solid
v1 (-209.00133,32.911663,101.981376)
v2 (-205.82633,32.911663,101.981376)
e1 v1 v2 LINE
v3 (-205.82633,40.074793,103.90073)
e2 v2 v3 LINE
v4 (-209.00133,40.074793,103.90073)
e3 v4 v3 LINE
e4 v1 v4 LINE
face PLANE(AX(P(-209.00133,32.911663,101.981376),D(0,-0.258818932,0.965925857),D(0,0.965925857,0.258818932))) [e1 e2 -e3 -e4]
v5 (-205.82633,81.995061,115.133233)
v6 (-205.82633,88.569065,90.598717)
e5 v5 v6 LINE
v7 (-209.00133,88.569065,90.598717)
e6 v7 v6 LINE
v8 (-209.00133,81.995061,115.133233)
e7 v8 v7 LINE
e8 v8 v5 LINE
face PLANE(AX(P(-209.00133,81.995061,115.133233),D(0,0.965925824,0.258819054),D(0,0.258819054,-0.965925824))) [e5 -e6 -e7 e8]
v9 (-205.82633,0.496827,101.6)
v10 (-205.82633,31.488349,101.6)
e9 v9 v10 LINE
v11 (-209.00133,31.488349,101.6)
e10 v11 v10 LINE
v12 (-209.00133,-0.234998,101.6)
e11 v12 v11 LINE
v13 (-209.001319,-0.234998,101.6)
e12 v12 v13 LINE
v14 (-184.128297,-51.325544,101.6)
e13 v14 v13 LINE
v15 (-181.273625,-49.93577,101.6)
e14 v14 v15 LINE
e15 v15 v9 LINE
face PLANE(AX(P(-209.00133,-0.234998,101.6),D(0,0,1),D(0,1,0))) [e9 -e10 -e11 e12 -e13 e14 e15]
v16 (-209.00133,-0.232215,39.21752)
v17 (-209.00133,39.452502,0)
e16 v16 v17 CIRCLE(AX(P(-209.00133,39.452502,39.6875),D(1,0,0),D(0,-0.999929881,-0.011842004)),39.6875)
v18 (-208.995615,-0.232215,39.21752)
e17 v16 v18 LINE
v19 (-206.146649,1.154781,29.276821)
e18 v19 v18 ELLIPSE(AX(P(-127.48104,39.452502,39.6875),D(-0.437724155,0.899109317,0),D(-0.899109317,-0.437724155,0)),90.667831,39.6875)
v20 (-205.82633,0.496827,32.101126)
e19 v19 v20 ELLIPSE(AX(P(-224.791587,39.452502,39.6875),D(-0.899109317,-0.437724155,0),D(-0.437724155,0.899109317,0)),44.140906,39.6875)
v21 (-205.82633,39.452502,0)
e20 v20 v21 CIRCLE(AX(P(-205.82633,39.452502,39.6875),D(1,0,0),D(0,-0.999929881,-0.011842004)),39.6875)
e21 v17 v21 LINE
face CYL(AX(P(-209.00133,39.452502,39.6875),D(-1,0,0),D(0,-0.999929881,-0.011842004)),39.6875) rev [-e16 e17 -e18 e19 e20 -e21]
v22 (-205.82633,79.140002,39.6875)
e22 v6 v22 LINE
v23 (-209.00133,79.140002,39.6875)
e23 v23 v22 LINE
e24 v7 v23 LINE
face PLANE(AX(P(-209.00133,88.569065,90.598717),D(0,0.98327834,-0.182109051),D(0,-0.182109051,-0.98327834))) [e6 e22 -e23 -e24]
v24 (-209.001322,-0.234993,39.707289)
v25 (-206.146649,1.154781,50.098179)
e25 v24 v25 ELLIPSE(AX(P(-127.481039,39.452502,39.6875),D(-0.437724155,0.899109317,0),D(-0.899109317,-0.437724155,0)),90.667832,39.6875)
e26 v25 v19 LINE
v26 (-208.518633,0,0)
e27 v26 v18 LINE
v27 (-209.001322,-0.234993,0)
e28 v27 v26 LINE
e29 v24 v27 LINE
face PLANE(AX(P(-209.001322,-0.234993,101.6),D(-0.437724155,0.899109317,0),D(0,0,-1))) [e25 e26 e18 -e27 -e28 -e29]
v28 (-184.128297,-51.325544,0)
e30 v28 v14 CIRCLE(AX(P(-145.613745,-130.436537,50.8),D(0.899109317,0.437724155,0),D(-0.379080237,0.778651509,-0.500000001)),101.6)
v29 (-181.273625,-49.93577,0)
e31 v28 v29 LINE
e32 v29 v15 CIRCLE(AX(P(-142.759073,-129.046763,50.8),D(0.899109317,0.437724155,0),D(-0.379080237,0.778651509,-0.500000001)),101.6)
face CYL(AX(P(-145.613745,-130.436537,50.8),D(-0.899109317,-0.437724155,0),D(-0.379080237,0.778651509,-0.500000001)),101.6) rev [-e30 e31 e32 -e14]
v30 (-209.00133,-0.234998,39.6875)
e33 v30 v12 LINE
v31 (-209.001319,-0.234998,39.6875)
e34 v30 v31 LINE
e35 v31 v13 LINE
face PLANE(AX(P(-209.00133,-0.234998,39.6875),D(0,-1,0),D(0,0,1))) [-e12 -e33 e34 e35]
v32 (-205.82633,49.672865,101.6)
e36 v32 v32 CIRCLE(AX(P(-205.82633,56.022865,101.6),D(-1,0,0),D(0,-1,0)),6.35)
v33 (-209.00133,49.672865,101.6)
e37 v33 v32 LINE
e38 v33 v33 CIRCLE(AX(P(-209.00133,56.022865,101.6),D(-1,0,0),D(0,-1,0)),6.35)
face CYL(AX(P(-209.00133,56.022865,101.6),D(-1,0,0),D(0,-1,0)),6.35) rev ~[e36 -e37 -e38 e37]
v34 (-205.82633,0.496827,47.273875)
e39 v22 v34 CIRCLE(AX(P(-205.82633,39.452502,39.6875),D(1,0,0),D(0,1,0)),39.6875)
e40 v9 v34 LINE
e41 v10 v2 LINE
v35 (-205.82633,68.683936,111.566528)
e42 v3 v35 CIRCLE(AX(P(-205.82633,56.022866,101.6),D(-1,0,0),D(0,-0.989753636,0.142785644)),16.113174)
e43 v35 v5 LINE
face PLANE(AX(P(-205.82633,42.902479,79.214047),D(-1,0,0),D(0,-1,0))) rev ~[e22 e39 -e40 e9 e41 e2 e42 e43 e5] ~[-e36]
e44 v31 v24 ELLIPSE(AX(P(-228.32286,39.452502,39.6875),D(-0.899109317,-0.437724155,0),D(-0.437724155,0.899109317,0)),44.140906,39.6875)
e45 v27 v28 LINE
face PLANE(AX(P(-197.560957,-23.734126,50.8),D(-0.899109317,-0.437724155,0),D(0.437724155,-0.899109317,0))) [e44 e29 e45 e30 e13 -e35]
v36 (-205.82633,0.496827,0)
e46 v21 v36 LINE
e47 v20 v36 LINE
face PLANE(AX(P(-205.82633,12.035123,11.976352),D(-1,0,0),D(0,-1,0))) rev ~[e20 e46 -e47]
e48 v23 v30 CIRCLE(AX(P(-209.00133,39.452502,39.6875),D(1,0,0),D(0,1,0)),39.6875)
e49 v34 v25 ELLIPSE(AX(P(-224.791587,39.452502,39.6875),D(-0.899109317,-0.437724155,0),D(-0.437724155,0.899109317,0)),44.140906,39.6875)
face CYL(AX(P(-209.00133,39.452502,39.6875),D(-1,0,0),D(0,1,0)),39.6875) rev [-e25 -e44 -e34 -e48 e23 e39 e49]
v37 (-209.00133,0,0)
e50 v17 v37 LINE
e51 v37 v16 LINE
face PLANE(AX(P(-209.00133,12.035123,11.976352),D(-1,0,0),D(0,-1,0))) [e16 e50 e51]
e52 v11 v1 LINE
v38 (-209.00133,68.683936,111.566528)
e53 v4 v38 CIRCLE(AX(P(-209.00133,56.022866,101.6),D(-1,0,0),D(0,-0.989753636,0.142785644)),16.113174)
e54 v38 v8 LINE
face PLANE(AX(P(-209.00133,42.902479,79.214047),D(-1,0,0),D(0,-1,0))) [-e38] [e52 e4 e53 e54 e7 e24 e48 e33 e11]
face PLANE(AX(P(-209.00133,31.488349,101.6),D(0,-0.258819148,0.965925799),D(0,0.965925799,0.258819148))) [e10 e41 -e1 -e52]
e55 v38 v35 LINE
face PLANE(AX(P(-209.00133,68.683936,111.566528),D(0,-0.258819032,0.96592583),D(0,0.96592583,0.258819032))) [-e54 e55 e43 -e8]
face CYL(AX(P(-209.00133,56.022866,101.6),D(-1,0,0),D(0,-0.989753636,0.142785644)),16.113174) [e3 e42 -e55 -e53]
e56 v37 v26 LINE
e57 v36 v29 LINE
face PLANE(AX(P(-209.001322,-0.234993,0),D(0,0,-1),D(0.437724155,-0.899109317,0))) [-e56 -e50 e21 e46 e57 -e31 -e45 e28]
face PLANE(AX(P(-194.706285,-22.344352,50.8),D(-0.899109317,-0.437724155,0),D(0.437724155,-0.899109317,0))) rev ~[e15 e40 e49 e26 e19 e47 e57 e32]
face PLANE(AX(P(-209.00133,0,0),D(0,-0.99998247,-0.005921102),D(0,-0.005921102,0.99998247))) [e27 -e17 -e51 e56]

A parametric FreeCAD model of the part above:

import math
import FreeCAD as App
import Part
import Sketcher
Q = App.Units.Quantity

doc = App.newDocument("Part")
body = doc.addObject("PartDesign::Body", "Body")

# Sketch on an angled plane
sketch1 = doc.addObject("Sketcher::SketchObject", "Sketch")
body.addObject(sketch1)
sketch1.Placement = App.Placement(App.Vector(-169.048635, -82.299993, 0), App.Rotation(App.Vector(0.437724155, -0.899109317, 0), App.Vector(0, 0, 1), App.Vector(-0.899109317, -0.437724155, 0), "ZXY"))
sketch1.addGeometry([
    Part.LineSegment(App.Vector(-34, 102, 0), App.Vector(-91, 102, 0)),
    Part.LineSegment(App.Vector(-91, 102, 0), App.Vector(-91, 0, 0)),
    Part.LineSegment(App.Vector(-91, 0, 0), App.Vector(-34, 0, 0)),
    Part.ArcOfCircle(Part.Circle(App.Vector(54, 51, 0), App.Vector(0, 0, 1), 102), math.radians(150), math.radians(210)),
], False)
sketch1.addConstraint([
    Sketcher.Constraint("Coincident", 0, 2, 1, 1),
    Sketcher.Constraint("Coincident", 1, 2, 2, 1),
    Sketcher.Constraint("Coincident", 2, 2, 3, 2),
    Sketcher.Constraint("Coincident", 3, 1, 0, 1),
    Sketcher.Constraint("Horizontal", 0),
    Sketcher.Constraint("Vertical", 1),
    Sketcher.Constraint("Horizontal", 2),
    Sketcher.Constraint("PointOnObject", 1, 2, -1),
    Sketcher.Constraint("Vertical", 2, 2, 3, 1),
    Sketcher.Constraint("Radius", 3, Q("4 in")),
    Sketcher.Constraint("DistanceY", 1, 2, 1, 1, Q("4 in")),
    Sketcher.Constraint("DistanceX", 0, 2, 0, 1, 56.823514),
    Sketcher.Constraint("DistanceX", 0, 2, -1, 1, 91.273662),
])
pad1 = doc.addObject("PartDesign::Pad", "Pad")
body.addObject(pad1)
pad1.Profile = sketch1
pad1.Length = Q("0.125 in")
pad1.Reversed = True

# Sketch on YZ plane
sketch2 = doc.addObject("Sketcher::SketchObject", "Sketch001")
body.addObject(sketch2)
sketch2.AttachmentSupport = (doc.YZ_Plane, [""])
sketch2.MapMode = "FlatFace"
sketch2.AttachmentOffset = App.Placement(App.Vector(0, 0, -209.00133), App.Rotation())
sketch2.addGeometry([
    Part.ArcOfCircle(Part.Circle(App.Vector(39.5, 39.7, 0), App.Vector(0, 0, 1), 39.7), math.radians(0), math.radians(180)),  # 0
    Part.LineSegment(App.Vector(-0.2, 39.7, 0), App.Vector(-0.2, 101.6, 0)),  # 1
    Part.LineSegment(App.Vector(-0.2, 101.6, 0), App.Vector(31.5, 101.6, 0)),  # 2
    Part.LineSegment(App.Vector(31.5, 101.6, 0), App.Vector(32.9, 102, 0)),  # 3
    Part.LineSegment(App.Vector(32.9, 102, 0), App.Vector(40.1, 103.9, 0)),  # 4
    Part.ArcOfCircle(Part.Circle(App.Vector(56, 101.6, 0), App.Vector(0, 0, 1), 16.1), math.radians(38), math.radians(172)),  # 5
    Part.LineSegment(App.Vector(68.7, 111.6, 0), App.Vector(82, 115.1, 0)),  # 6
    Part.LineSegment(App.Vector(82, 115.1, 0), App.Vector(88.6, 90.6, 0)),  # 7
    Part.LineSegment(App.Vector(88.6, 90.6, 0), App.Vector(79.1, 39.7, 0)),  # 8
    Part.Circle(App.Vector(56, 101.6, 0), App.Vector(0, 0, 1), 6.3),  # 9
    Part.LineSegment(App.Vector(0, 0, 0), App.Vector(-0.2, 39.2, 0)),  # 10
    Part.ArcOfCircle(Part.Circle(App.Vector(39.5, 39.7, 0), App.Vector(0, 0, 1), 39.7), math.radians(-179), math.radians(-90)),  # 11
    Part.LineSegment(App.Vector(39.5, 0, 0), App.Vector(0, 0, 0)),  # 12
], False)
sketch2.addConstraint([
    Sketcher.Constraint("Tangent", 0, 2, 1, 1),
    Sketcher.Constraint("Coincident", 1, 2, 2, 1),
    Sketcher.Constraint("Coincident", 2, 2, 3, 1),
    Sketcher.Constraint("Coincident", 3, 2, 4, 1),
    Sketcher.Constraint("Coincident", 4, 2, 5, 2),
    Sketcher.Constraint("Coincident", 5, 1, 6, 1),
    Sketcher.Constraint("Coincident", 6, 2, 7, 1),
    Sketcher.Constraint("Coincident", 7, 2, 8, 1),
    Sketcher.Constraint("Coincident", 8, 2, 0, 1),
    Sketcher.Constraint("Coincident", 10, 2, 11, 1),
    Sketcher.Constraint("Tangent", 11, 2, 12, 1),
    Sketcher.Constraint("Coincident", 12, 2, 10, 1),
    Sketcher.Constraint("Vertical", 1),
    Sketcher.Constraint("Horizontal", 2),
    Sketcher.Constraint("Horizontal", 12),
    Sketcher.Constraint("Coincident", 12, 2, -1, 1),
    Sketcher.Constraint("Coincident", 9, 3, 5, 3),
    Sketcher.Constraint("Coincident", 11, 3, 0, 3),
    Sketcher.Constraint("Equal", 0, 11),
    Sketcher.Constraint("Parallel", 3, 4),
    Sketcher.Constraint("Parallel", 4, 6),
    Sketcher.Constraint("Perpendicular", 6, 7),
    Sketcher.Constraint("Horizontal", 9, 3, 1, 2),
    Sketcher.Constraint("Horizontal", 0, 2, 8, 2),
    Sketcher.Constraint("Diameter", 9, Q("0.5 in")),
    Sketcher.Constraint("Distance", 7, Q("1 in")),
    Sketcher.Constraint("DistanceY", -1, 1, 5, 3, Q("4 in")),
    Sketcher.Constraint("Angle", 3, Q("15.000006 deg")),
    Sketcher.Constraint("Radius", 0, Q("1.5625 in")),
    Sketcher.Constraint("Radius", 5, 16.113174),
    Sketcher.Constraint("DistanceX", -1, 1, 11, 3, 39.452502),
    Sketcher.Constraint("DistanceX", 3, 2, 6, 2, 49.083398),
    Sketcher.Constraint("DistanceX", 5, 3, 7, 2, 32.546199),
    Sketcher.Constraint("Distance", 6, 13.780691),
    Sketcher.Constraint("DistanceX", 2, 1, 2, 2, 31.723347),
    Sketcher.Constraint("DistanceY", -1, 1, 4, 2, 103.90073),
    Sketcher.Constraint("DistanceY", -1, 1, 10, 2, 39.21752),
])
pad2 = doc.addObject("PartDesign::Pad", "Pad001")
body.addObject(pad2)
pad2.Profile = sketch2
pad2.Length = Q("0.125 in")

doc.recompute()
